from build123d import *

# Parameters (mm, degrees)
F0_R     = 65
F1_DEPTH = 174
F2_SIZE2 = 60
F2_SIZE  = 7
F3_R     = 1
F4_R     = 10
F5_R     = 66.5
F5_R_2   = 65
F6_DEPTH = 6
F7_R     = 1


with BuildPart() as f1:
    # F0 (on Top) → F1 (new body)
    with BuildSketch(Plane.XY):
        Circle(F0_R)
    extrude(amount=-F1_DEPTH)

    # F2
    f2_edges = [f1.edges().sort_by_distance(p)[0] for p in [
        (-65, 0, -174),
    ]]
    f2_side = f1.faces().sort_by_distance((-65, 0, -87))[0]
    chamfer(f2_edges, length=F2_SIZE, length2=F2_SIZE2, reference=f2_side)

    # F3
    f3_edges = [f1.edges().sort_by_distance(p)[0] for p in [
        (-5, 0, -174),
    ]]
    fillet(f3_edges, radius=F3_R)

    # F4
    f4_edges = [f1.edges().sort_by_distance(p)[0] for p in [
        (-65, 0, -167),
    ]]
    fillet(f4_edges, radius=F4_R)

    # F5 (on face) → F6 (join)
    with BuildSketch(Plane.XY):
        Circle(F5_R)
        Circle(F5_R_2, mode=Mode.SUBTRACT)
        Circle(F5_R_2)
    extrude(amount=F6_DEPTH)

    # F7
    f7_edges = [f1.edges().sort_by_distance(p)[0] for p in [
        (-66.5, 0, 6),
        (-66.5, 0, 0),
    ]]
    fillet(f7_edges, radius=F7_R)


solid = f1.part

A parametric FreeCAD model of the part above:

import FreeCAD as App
import Part
import Sketcher

V = App.Vector


def edges_at(feature, points):
    """Names of the edges that pass closest to the given points."""
    edges = feature.Shape.Edges
    near = lambda p: min(range(len(edges)), key=lambda i: edges[i].distToShape(Part.Vertex(*p))[0])
    return sorted({f"Edge{near(p) + 1}" for p in points})

doc = App.newDocument("Part")
params = doc.addObject("Spreadsheet::Sheet", "Params")
for row, (alias, value) in enumerate([
    ("sketch1_diameter", "130 mm"),
    ("pad1_length", "174 mm"),
    ("chamfer_size", "7 mm"),
    ("chamfer_size2", "60 mm"),
    ("fillet_radius", "1 mm"),
    ("fillet2_radius", "10 mm"),
    ("sketch2_diameter", "133 mm"),
    ("pad2_length", "6 mm"),
    ("fillet3_radius", "1 mm"),
], start=1):
    params.set(f"A{row}", alias)
    params.set(f"B{row}", "=" + value)
    params.setAlias(f"B{row}", alias)

body = doc.addObject("PartDesign::Body", "Body")

sketch1 = body.newObject("Sketcher::SketchObject", "Sketch")
sketch1.AttachmentSupport = (doc.getObject("XY_Plane"), [""])
sketch1.MapMode = "FlatFace"
sketch1.addGeometry(Part.Circle(V(0, 0, 0), V(0, 0, 1), 65), False)
sketch1.addConstraint(Sketcher.Constraint("Coincident", 0, 3, -1, 1))
sketch1.addConstraint(Sketcher.Constraint("Diameter", 0, 130.0))
sketch1.setExpression("Constraints[1]", "Params.sketch1_diameter")
pad1 = body.newObject("PartDesign::Pad", "Pad")
pad1.Profile = sketch1
pad1.setExpression("Length", "Params.pad1_length")
pad1.Reversed = True
doc.recompute()

chamfer = body.newObject("PartDesign::Chamfer", "Chamfer")
chamfer.Base = (pad1, edges_at(pad1, [(-65, 0, -174)]))
chamfer.ChamferType = "Two distances"
chamfer.setExpression("Size", "Params.chamfer_size")
chamfer.setExpression("Size2", "Params.chamfer_size2")
doc.recompute()

fillet = body.newObject("PartDesign::Fillet", "Fillet")
fillet.Base = (chamfer, edges_at(chamfer, [(-5, 0, -174)]))
fillet.setExpression("Radius", "Params.fillet_radius")
doc.recompute()

fillet2 = body.newObject("PartDesign::Fillet", "Fillet001")
fillet2.Base = (fillet, edges_at(fillet, [(-65, 0, -167)]))
fillet2.setExpression("Radius", "Params.fillet2_radius")

sketch2 = body.newObject("Sketcher::SketchObject", "Sketch001")
sketch2.AttachmentSupport = (doc.getObject("XY_Plane"), [""])
sketch2.MapMode = "FlatFace"
sketch2.addGeometry(Part.Circle(V(0, 0, 0), V(0, 0, 1), 66), False)
sketch2.addConstraint(Sketcher.Constraint("Coincident", 0, 3, -1, 1))
sketch2.addConstraint(Sketcher.Constraint("Diameter", 0, 133.0))
sketch2.setExpression("Constraints[1]", "Params.sketch2_diameter")
pad2 = body.newObject("PartDesign::Pad", "Pad001")
pad2.Profile = sketch2
pad2.setExpression("Length", "Params.pad2_length")
doc.recompute()

fillet3 = body.newObject("PartDesign::Fillet", "Fillet002")
fillet3.Base = (pad2, edges_at(pad2, [(-66.5, 0, 6), (-66.5, 0, 0)]))
fillet3.setExpression("Radius", "Params.fillet3_radius")

doc.recompute()
